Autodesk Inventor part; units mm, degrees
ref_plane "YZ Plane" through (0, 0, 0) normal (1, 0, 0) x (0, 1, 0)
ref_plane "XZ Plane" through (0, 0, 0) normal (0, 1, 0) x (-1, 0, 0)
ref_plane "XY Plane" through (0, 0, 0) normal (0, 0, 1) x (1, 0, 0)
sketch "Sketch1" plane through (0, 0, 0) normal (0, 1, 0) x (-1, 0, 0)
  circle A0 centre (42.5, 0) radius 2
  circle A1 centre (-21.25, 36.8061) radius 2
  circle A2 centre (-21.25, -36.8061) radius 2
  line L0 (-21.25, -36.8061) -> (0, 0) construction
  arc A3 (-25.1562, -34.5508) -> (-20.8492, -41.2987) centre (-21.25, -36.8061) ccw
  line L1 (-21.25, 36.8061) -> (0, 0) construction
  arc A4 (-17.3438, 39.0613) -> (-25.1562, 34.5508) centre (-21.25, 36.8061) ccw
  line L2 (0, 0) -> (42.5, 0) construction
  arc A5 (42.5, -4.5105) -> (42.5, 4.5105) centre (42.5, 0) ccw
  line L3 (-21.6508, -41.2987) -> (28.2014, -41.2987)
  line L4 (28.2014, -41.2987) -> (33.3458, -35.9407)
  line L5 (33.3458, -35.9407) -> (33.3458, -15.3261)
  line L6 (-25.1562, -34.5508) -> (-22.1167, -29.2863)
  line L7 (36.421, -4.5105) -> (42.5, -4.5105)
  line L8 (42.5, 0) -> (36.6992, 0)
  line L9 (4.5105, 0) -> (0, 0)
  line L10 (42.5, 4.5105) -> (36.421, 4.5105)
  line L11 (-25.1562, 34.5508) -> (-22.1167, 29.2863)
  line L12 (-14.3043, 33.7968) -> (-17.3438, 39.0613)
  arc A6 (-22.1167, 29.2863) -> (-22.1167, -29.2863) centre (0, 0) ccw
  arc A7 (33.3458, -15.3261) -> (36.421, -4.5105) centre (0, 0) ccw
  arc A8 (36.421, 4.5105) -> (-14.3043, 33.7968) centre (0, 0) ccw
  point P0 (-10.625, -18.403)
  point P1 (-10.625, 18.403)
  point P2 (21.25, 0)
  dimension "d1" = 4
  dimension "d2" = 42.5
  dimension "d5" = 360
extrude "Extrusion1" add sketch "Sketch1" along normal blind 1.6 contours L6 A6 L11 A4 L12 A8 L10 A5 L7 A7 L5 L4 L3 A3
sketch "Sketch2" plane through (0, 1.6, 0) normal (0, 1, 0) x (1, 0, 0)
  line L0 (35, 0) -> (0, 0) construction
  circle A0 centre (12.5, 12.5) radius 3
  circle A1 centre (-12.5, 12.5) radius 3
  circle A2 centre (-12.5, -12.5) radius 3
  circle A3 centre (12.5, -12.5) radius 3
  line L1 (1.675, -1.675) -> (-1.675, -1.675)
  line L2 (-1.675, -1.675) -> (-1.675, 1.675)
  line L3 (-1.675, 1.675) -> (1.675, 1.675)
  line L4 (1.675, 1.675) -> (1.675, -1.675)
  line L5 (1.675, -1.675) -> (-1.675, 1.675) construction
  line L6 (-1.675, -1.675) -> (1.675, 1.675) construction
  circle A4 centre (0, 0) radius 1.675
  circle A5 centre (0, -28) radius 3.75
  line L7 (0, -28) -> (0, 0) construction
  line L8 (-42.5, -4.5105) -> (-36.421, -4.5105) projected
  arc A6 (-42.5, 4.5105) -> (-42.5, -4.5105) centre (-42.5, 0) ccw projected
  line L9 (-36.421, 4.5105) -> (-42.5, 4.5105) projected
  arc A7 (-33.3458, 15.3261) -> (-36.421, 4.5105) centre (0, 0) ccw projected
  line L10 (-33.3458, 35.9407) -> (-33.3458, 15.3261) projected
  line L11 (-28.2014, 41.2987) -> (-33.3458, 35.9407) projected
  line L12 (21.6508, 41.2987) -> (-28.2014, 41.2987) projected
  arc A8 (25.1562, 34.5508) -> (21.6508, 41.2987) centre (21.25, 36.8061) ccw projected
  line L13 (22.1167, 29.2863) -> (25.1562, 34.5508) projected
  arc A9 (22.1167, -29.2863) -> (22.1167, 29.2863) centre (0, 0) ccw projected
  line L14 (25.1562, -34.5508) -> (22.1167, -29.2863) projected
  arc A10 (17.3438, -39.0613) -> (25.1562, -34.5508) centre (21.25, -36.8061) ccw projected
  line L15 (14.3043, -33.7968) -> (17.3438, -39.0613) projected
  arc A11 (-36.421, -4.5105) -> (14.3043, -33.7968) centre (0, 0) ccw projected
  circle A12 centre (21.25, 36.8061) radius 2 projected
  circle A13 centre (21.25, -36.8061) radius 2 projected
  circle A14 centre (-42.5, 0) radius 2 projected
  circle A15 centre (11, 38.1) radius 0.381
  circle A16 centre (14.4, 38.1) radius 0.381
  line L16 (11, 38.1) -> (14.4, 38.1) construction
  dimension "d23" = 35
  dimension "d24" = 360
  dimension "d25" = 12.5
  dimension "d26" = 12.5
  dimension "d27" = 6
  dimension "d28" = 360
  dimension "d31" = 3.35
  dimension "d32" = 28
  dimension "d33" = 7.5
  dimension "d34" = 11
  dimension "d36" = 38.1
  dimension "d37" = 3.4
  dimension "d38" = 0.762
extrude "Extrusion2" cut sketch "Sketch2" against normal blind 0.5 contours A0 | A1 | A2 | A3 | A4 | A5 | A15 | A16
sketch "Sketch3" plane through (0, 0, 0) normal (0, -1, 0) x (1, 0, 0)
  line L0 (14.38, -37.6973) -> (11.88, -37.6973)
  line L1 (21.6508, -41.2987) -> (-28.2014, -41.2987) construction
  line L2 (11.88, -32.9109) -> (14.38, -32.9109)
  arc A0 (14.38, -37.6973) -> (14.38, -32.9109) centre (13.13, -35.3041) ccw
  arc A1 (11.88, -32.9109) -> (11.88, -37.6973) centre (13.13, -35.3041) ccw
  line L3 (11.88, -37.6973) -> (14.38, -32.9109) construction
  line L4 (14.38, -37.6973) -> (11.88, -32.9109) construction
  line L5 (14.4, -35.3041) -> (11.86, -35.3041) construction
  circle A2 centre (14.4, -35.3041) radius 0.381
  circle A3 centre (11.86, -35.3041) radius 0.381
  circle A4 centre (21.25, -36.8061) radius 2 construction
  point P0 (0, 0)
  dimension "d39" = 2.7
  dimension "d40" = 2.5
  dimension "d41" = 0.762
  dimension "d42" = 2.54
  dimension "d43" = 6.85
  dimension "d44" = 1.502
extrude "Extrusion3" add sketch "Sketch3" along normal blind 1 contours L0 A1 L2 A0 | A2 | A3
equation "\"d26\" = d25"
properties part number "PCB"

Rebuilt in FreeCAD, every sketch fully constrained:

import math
import FreeCAD as App
import Part
import Sketcher
from FreeCAD import Vector
Q = App.Units.Quantity

doc = App.newDocument("Part")
body = doc.addObject("PartDesign::Body", "Body")

# Sketch on XZ plane
sketch1 = doc.addObject("Sketcher::SketchObject", "Sketch")
body.addObject(sketch1)
sketch1.AttachmentSupport = (doc.XZ_Plane, [""])
sketch1.MapMode = "FlatFace"
sketch1.addGeometry(Part.LineSegment(Vector(22.1167, -29.2863, 0), Vector(25.1562, -34.5508, 0)), False)
sketch1.addGeometry(Part.ArcOfCircle(Part.Circle(Vector(21.25, -36.8061, 0), Vector(0, 0, 1), 4.510518), math.radians(-84.901947), math.radians(30.000598)), False)
sketch1.addGeometry(Part.LineSegment(Vector(21.6508, -41.2987, 0), Vector(-28.2014, -41.2987, 0)), False)
sketch1.addGeometry(Part.LineSegment(Vector(-28.2014, -41.2987, 0), Vector(-33.3458, -35.9407, 0)), False)
sketch1.addGeometry(Part.LineSegment(Vector(-33.3458, -35.9407, 0), Vector(-33.3458, -15.3261, 0)), False)
sketch1.addGeometry(Part.ArcOfCircle(Part.Circle(Vector(0.001158, 0.000428, 0), Vector(0, 0, 1), 36.700437), math.radians(-172.939802), math.radians(-155.316111)), False)
sketch1.addGeometry(Part.LineSegment(Vector(-36.421, -4.5105, 0), Vector(-42.5, -4.5105, 0)), False)
sketch1.addGeometry(Part.ArcOfCircle(Part.Circle(Vector(-42.5, 0, 0), Vector(0, 0, 1), 4.5105), math.radians(90), math.radians(270)), False)
sketch1.addGeometry(Part.LineSegment(Vector(-42.5, 4.5105, 0), Vector(-36.421, 4.5105, 0)), False)
sketch1.addGeometry(Part.ArcOfCircle(Part.Circle(Vector(0, 0, 0), Vector(0, 0, 1), 36.699261), math.radians(67.05977), math.radians(172.940242)), False)
sketch1.addGeometry(Part.LineSegment(Vector(14.3043, 33.7968, 0), Vector(17.3438, 39.0613, 0)), False)
sketch1.addGeometry(Part.ArcOfCircle(Part.Circle(Vector(21.25, 36.8061, 0), Vector(0, 0, 1), 4.510468), math.radians(-30.000598), math.radians(150.000502)), False)
sketch1.addGeometry(Part.LineSegment(Vector(25.1562, 34.5508, 0), Vector(22.1167, 29.2863, 0)), False)
sketch1.addGeometry(Part.ArcOfCircle(Part.Circle(Vector(0, 0, 0), Vector(0, 0, 1), 36.699261), math.radians(-52.940288), math.radians(52.940288)), False)
sketch1.addGeometry(Part.Circle(Vector(21.25, -36.8061, 0), Vector(0, 0, 1), 2), False)
sketch1.addGeometry(Part.Circle(Vector(-42.5, 0, 0), Vector(0, 0, 1), 2), False)
sketch1.addGeometry(Part.Circle(Vector(21.25, 36.8061, 0), Vector(0, 0, 1), 2), False)
sketch1.addConstraint(Sketcher.Constraint("Tangent", 0, 2, 1, 2))
sketch1.addConstraint(Sketcher.Constraint("Coincident", 1, 1, 2, 1))
sketch1.addConstraint(Sketcher.Constraint("Coincident", 2, 2, 3, 1))
sketch1.addConstraint(Sketcher.Constraint("Coincident", 3, 2, 4, 1))
sketch1.addConstraint(Sketcher.Constraint("Coincident", 4, 2, 5, 2))
sketch1.addConstraint(Sketcher.Constraint("Coincident", 5, 1, 6, 1))
sketch1.addConstraint(Sketcher.Constraint("Tangent", 6, 2, 7, 2))
sketch1.addConstraint(Sketcher.Constraint("Tangent", 7, 1, 8, 1))
sketch1.addConstraint(Sketcher.Constraint("Coincident", 8, 2, 9, 2))
sketch1.addConstraint(Sketcher.Constraint("Coincident", 9, 1, 10, 1))
sketch1.addConstraint(Sketcher.Constraint("Tangent", 10, 2, 11, 2))
sketch1.addConstraint(Sketcher.Constraint("Tangent", 11, 1, 12, 1))
sketch1.addConstraint(Sketcher.Constraint("Coincident", 12, 2, 13, 2))
sketch1.addConstraint(Sketcher.Constraint("Coincident", 13, 1, 0, 1))
sketch1.addConstraint(Sketcher.Constraint("Horizontal", 2))
sketch1.addConstraint(Sketcher.Constraint("Vertical", 4))
sketch1.addConstraint(Sketcher.Constraint("Horizontal", 6))
sketch1.addConstraint(Sketcher.Constraint("Horizontal", 8))
sketch1.addConstraint(Sketcher.Constraint("Coincident", 9, 3, -1, 1))
sketch1.addConstraint(Sketcher.Constraint("Coincident", 13, 3, -1, 1))
sketch1.addConstraint(Sketcher.Constraint("Coincident", 14, 3, 1, 3))
sketch1.addConstraint(Sketcher.Constraint("Coincident", 15, 3, 7, 3))
sketch1.addConstraint(Sketcher.Constraint("Coincident", 16, 3, 11, 3))
sketch1.addConstraint(Sketcher.Constraint("Equal", 1, 7))
sketch1.addConstraint(Sketcher.Constraint("Equal", 7, 11))
sketch1.addConstraint(Sketcher.Constraint("Equal", 9, 13))
sketch1.addConstraint(Sketcher.Constraint("Equal", 14, 15))
sketch1.addConstraint(Sketcher.Constraint("Equal", 15, 16))
sketch1.addConstraint(Sketcher.Constraint("Symmetric", 1, 3, 11, 3, -1))
sketch1.addConstraint(Sketcher.Constraint("Symmetric", 5, 1, 8, 2, -1))
sketch1.addConstraint(Sketcher.Constraint("Parallel", 10, 12))
sketch1.addConstraint(Sketcher.Constraint("Vertical", 0, 2, 11, 1))
sketch1.addConstraint(Sketcher.Constraint("Equal", 0, 10))
sketch1.addConstraint(Sketcher.Constraint("Diameter", 14, 4.0))
sketch1.addConstraint(Sketcher.Constraint("DistanceX", 7, 3, -1, 1, 42.5))
sketch1.addConstraint(Sketcher.Constraint("Angle", 0, Q("-59.9997 deg")))
sketch1.addConstraint(Sketcher.Constraint("Radius", 1, 4.5105))
sketch1.addConstraint(Sketcher.Constraint("Radius", 5, 36.7004))
sketch1.addConstraint(Sketcher.Constraint("Radius", 9, 36.6993))
sketch1.addConstraint(Sketcher.Constraint("DistanceX", -1, 1, 1, 3, 21.25))
sketch1.addConstraint(Sketcher.Constraint("DistanceX", 2, 2, 2, 1, 49.8522))
sketch1.addConstraint(Sketcher.Constraint("DistanceY", 4, 1, 4, 2, 20.6146))
sketch1.addConstraint(Sketcher.Constraint("DistanceY", 4, 2, -1, 1, 15.326))
sketch1.addConstraint(Sketcher.Constraint("DistanceX", 5, 3, 0, 2, 25.155))
sketch1.addConstraint(Sketcher.Constraint("DistanceY", 1, 1, 0, 2, 6.748))
pad1 = doc.addObject("PartDesign::Pad", "Pad")
body.addObject(pad1)
pad1.Profile = sketch1
pad1.Length = 1.6
pad1.Reversed = True

# Sketch on XZ plane
sketch2 = doc.addObject("Sketcher::SketchObject", "Sketch001")
body.addObject(sketch2)
sketch2.AttachmentSupport = (doc.XZ_Plane, [""])
sketch2.MapMode = "FlatFace"
sketch2.AttachmentOffset = App.Placement(Vector(0, 0, -1.6), App.Rotation())
sketch2.addGeometry(Part.Circle(Vector(12.5, -12.5, 0), Vector(0, 0, 1), 3), False)
sketch2.addGeometry(Part.Circle(Vector(-12.5, -12.5, 0), Vector(0, 0, 1), 3), False)
sketch2.addGeometry(Part.Circle(Vector(-12.5, 12.5, 0), Vector(0, 0, 1), 3), False)
sketch2.addGeometry(Part.Circle(Vector(12.5, 12.5, 0), Vector(0, 0, 1), 3), False)
sketch2.addGeometry(Part.Circle(Vector(0, 0, 0), Vector(0, 0, 1), 1.675), False)
sketch2.addGeometry(Part.Circle(Vector(0, 28, 0), Vector(0, 0, 1), 3.75), False)
sketch2.addGeometry(Part.Circle(Vector(11, -38.1, 0), Vector(0, 0, 1), 0.381), False)
sketch2.addGeometry(Part.Circle(Vector(14.4, -38.1, 0), Vector(0, 0, 1), 0.381), False)
sketch2.addConstraint(Sketcher.Constraint("Coincident", 4, 3, -1, 1))
sketch2.addConstraint(Sketcher.Constraint("Equal", 0, 1))
sketch2.addConstraint(Sketcher.Constraint("Equal", 1, 2))
sketch2.addConstraint(Sketcher.Constraint("Equal", 2, 3))
sketch2.addConstraint(Sketcher.Constraint("Equal", 6, 7))
sketch2.addConstraint(Sketcher.Constraint("Symmetric", 0, 3, 2, 3, -1, 1))
sketch2.addConstraint(Sketcher.Constraint("Symmetric", 1, 3, 3, 3, -1, 1))
sketch2.addConstraint(Sketcher.Constraint("Symmetric", 0, 3, 1, 3, -2))
sketch2.addConstraint(Sketcher.Constraint("PointOnObject", 5, 3, -2))
sketch2.addConstraint(Sketcher.Constraint("Horizontal", 6, 3, 7, 3))
sketch2.addConstraint(Sketcher.Constraint("Diameter", 0, 6.0))
sketch2.addConstraint(Sketcher.Constraint("Diameter", 5, 7.5))
sketch2.addConstraint(Sketcher.Constraint("Diameter", 4, 3.35))
sketch2.addConstraint(Sketcher.Constraint("Diameter", 6, 0.762))
sketch2.addConstraint(Sketcher.Constraint("DistanceY", -1, 1, 5, 3, 28.0))
sketch2.addConstraint(Sketcher.Constraint("DistanceX", -1, 1, 6, 3, 11.0))
sketch2.addConstraint(Sketcher.Constraint("DistanceX", -1, 1, 0, 3, 12.5))
sketch2.addConstraint(Sketcher.Constraint("DistanceY", 0, 3, -1, 1, 12.5))
sketch2.addConstraint(Sketcher.Constraint("DistanceY", 6, 3, -1, 1, 38.1))
sketch2.addConstraint(Sketcher.Constraint("DistanceX", 6, 3, 7, 3, 3.4))
pocket1 = doc.addObject("PartDesign::Pocket", "Pocket")
body.addObject(pocket1)
pocket1.Profile = sketch2
pocket1.Length = 0.5
pocket1.Reversed = True

# Sketch on XZ plane
sketch3 = doc.addObject("Sketcher::SketchObject", "Sketch002")
body.addObject(sketch3)
sketch3.AttachmentSupport = (doc.XZ_Plane, [""])
sketch3.MapMode = "FlatFace"
sketch3.addGeometry(Part.LineSegment(Vector(11.88, -37.6973, 0), Vector(14.38, -37.6973, 0)), False)
sketch3.addGeometry(Part.ArcOfCircle(Part.Circle(Vector(13.13, -35.3041, 0), Vector(0, 0, 1), 2.699983), math.radians(-62.42134), math.radians(62.42134)), False)
sketch3.addGeometry(Part.LineSegment(Vector(14.38, -32.9109, 0), Vector(11.88, -32.9109, 0)), False)
sketch3.addGeometry(Part.ArcOfCircle(Part.Circle(Vector(13.13, -35.3041, 0), Vector(0, 0, 1), 2.699983), math.radians(117.57866), math.radians(242.42134)), False)
sketch3.addConstraint(Sketcher.Constraint("Coincident", 0, 2, 1, 1))
sketch3.addConstraint(Sketcher.Constraint("Coincident", 1, 2, 2, 1))
sketch3.addConstraint(Sketcher.Constraint("Coincident", 2, 2, 3, 1))
sketch3.addConstraint(Sketcher.Constraint("Coincident", 3, 2, 0, 1))
sketch3.addConstraint(Sketcher.Constraint("Horizontal", 0))
sketch3.addConstraint(Sketcher.Constraint("Horizontal", 2))
sketch3.addConstraint(Sketcher.Constraint("Coincident", 3, 3, 1, 3))
sketch3.addConstraint(Sketcher.Constraint("Equal", 1, 3))
sketch3.addConstraint(Sketcher.Constraint("Vertical", 0, 2, 1, 2))
sketch3.addConstraint(Sketcher.Constraint("Radius", 1, 2.7))
sketch3.addConstraint(Sketcher.Constraint("DistanceX", 0, 1, 0, 2, 2.5))
sketch3.addConstraint(Sketcher.Constraint("DistanceX", -1, 1, 1, 3, 13.13))
sketch3.addConstraint(Sketcher.Constraint("DistanceY", 1, 3, -1, 1, 35.304))
pad2 = doc.addObject("PartDesign::Pad", "Pad001")
body.addObject(pad2)
pad2.Profile = sketch3
pad2.Length = 1

doc.recompute()
